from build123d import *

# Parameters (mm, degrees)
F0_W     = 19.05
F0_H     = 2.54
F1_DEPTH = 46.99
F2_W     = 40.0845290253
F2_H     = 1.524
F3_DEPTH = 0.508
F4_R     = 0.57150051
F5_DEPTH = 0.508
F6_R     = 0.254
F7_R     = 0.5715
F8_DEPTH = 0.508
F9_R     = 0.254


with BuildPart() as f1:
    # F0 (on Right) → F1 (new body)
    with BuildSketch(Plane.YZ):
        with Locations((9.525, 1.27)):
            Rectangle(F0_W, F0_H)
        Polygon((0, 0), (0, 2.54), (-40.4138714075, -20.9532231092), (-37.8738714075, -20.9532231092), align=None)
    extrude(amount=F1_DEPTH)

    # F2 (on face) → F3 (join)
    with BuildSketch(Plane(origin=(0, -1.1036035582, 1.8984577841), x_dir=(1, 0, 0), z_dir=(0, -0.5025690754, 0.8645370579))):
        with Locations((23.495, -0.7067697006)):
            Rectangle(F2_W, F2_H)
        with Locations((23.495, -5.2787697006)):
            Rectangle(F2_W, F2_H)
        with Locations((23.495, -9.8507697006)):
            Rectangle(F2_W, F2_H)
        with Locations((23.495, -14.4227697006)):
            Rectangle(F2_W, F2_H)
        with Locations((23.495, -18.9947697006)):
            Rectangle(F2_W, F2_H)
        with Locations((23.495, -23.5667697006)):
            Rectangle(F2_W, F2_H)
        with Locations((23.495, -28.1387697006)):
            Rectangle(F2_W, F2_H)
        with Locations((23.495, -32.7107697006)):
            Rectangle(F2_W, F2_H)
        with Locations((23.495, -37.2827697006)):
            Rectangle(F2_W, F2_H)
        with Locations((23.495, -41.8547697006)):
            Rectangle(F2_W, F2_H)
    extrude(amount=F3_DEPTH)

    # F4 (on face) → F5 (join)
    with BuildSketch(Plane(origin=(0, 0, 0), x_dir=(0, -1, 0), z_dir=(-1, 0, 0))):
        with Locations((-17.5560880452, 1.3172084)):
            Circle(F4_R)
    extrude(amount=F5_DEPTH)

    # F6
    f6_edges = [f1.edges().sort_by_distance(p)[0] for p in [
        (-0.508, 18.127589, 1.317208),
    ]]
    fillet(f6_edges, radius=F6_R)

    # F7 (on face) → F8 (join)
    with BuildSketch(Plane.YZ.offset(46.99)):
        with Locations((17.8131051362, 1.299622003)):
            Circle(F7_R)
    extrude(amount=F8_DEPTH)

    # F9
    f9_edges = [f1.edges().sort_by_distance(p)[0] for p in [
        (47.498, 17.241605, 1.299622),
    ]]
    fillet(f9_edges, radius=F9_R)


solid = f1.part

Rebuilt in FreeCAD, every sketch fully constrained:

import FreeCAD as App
import Part
import Sketcher
Q = App.Units.Quantity


def edges_at(feature, points):
    """Names of the edges that pass closest to the given points."""
    edges = feature.Shape.Edges
    near = lambda p: min(range(len(edges)), key=lambda i: edges[i].distToShape(Part.Vertex(*p))[0])
    return sorted({f"Edge{near(p) + 1}" for p in points})

doc = App.newDocument("Part")
params = doc.addObject("Spreadsheet::Sheet", "Params")
for row, (alias, value) in enumerate([
    ("sketch1_width", "0.1 in"),
    ("sketch1_width2", "0.75 in"),
    ("pad1_length", "1.85 in"),
    ("sketch2_height", "0.06 in"),
    ("pad2_length", "0.02 in"),
    ("sketch3_diameter", "0.045 in"),
    ("pad3_length", "0.02 in"),
    ("fillet_radius", "0.01 in"),
    ("sketch4_diameter", "0.045 in"),
    ("pad4_length", "0.02 in"),
    ("fillet2_radius", "0.01 in"),
], start=1):
    params.set(f"A{row}", alias)
    params.set(f"B{row}", "=" + value)
    params.setAlias(f"B{row}", alias)

body = doc.addObject("PartDesign::Body", "Body")

# Sketch on YZ plane
sketch1 = doc.addObject("Sketcher::SketchObject", "Sketch")
body.addObject(sketch1)
sketch1.AttachmentSupport = (doc.YZ_Plane, [""])
sketch1.MapMode = "FlatFace"
sketch1.addGeometry([
    Part.LineSegment(App.Vector(0, 0, 0), App.Vector(19.1, 0, 0)),  # 0
    Part.LineSegment(App.Vector(19.1, 0, 0), App.Vector(19.1, 2.5, 0)),  # 1
    Part.LineSegment(App.Vector(19.1, 2.5, 0), App.Vector(0, 2.5, 0)),  # 2
    Part.LineSegment(App.Vector(0, 2.5, 0), App.Vector(-40.4, -21, 0)),  # 3
    Part.LineSegment(App.Vector(-40.4, -21, 0), App.Vector(-37.9, -21, 0)),  # 4
    Part.LineSegment(App.Vector(-37.9, -21, 0), App.Vector(0, 0, 0)),  # 5
], False)
sketch1.addConstraint([
    Sketcher.Constraint("Coincident", 0, 2, 1, 1),
    Sketcher.Constraint("Coincident", 1, 2, 2, 1),
    Sketcher.Constraint("Coincident", 2, 2, 3, 1),
    Sketcher.Constraint("Coincident", 3, 2, 4, 1),
    Sketcher.Constraint("Coincident", 4, 2, 5, 1),
    Sketcher.Constraint("Coincident", 5, 2, 0, 1),
    Sketcher.Constraint("Horizontal", 0),
    Sketcher.Constraint("Vertical", 1),
    Sketcher.Constraint("Horizontal", 2),
    Sketcher.Constraint("Horizontal", 4),
    Sketcher.Constraint("Coincident", 5, 2, -1, 1),
    Sketcher.Constraint("PointOnObject", 2, 2, -2),
    Sketcher.Constraint("Equal", 4, 1),
    Sketcher.Constraint("DistanceX", 4, 1, 4, 2, Q("0.1 in")),
    Sketcher.Constraint("DistanceX", 0, 1, 0, 2, Q("0.75 in")),
    Sketcher.Constraint("DistanceX", 3, 2, -1, 1, 40.413871),
    Sketcher.Constraint("Distance", 3, 46.746257),
])
sketch1.setExpression("Constraints[13]", "Params.sketch1_width")
sketch1.setExpression("Constraints[14]", "Params.sketch1_width2")
pad1 = doc.addObject("PartDesign::Pad", "Pad")
body.addObject(pad1)
pad1.Profile = sketch1
pad1.setExpression("Length", "Params.pad1_length")

# Sketch on an angled plane
sketch2 = doc.addObject("Sketcher::SketchObject", "Sketch001")
body.addObject(sketch2)
sketch2.Placement = App.Placement(App.Vector(0, -1.103604, 1.898458), App.Rotation(App.Vector(1, 0, 0), App.Vector(0, 0.864537058, 0.502569075), App.Vector(0, -0.502569075, 0.864537058), "ZXY"))
sketch2.addGeometry([
    Part.LineSegment(App.Vector(3.5, 0.1, 0), App.Vector(3.5, -1.5, 0)),  # 0
    Part.LineSegment(App.Vector(3.5, -1.5, 0), App.Vector(43.5, -1.5, 0)),  # 1
    Part.LineSegment(App.Vector(43.5, -1.5, 0), App.Vector(43.5, 0.1, 0)),  # 2
    Part.LineSegment(App.Vector(43.5, 0.1, 0), App.Vector(3.5, 0.1, 0)),  # 3
    Part.LineSegment(App.Vector(3.5, -4.5, 0), App.Vector(3.5, -6, 0)),  # 4
    Part.LineSegment(App.Vector(3.5, -6, 0), App.Vector(43.5, -6, 0)),  # 5
    Part.LineSegment(App.Vector(43.5, -6, 0), App.Vector(43.5, -4.5, 0)),  # 6
    Part.LineSegment(App.Vector(43.5, -4.5, 0), App.Vector(3.5, -4.5, 0)),  # 7
    Part.LineSegment(App.Vector(3.5, -9.1, 0), App.Vector(3.5, -10.6, 0)),  # 8
    Part.LineSegment(App.Vector(3.5, -10.6, 0), App.Vector(43.5, -10.6, 0)),  # 9
    Part.LineSegment(App.Vector(43.5, -10.6, 0), App.Vector(43.5, -9.1, 0)),  # 10
    Part.LineSegment(App.Vector(43.5, -9.1, 0), App.Vector(3.5, -9.1, 0)),  # 11
    Part.LineSegment(App.Vector(3.5, -13.7, 0), App.Vector(3.5, -15.2, 0)),  # 12
    Part.LineSegment(App.Vector(3.5, -15.2, 0), App.Vector(43.5, -15.2, 0)),  # 13
    Part.LineSegment(App.Vector(43.5, -15.2, 0), App.Vector(43.5, -13.7, 0)),  # 14
    Part.LineSegment(App.Vector(43.5, -13.7, 0), App.Vector(3.5, -13.7, 0)),  # 15
    Part.LineSegment(App.Vector(3.5, -18.2, 0), App.Vector(3.5, -19.8, 0)),  # 16
    Part.LineSegment(App.Vector(3.5, -19.8, 0), App.Vector(43.5, -19.8, 0)),  # 17
    Part.LineSegment(App.Vector(43.5, -19.8, 0), App.Vector(43.5, -18.2, 0)),  # 18
    Part.LineSegment(App.Vector(43.5, -18.2, 0), App.Vector(3.5, -18.2, 0)),  # 19
    Part.LineSegment(App.Vector(3.5, -22.8, 0), App.Vector(3.5, -24.3, 0)),  # 20
    Part.LineSegment(App.Vector(3.5, -24.3, 0), App.Vector(43.5, -24.3, 0)),  # 21
    Part.LineSegment(App.Vector(43.5, -24.3, 0), App.Vector(43.5, -22.8, 0)),  # 22
    Part.LineSegment(App.Vector(43.5, -22.8, 0), App.Vector(3.5, -22.8, 0)),  # 23
    Part.LineSegment(App.Vector(3.5, -27.4, 0), App.Vector(3.5, -28.9, 0)),  # 24
    Part.LineSegment(App.Vector(3.5, -28.9, 0), App.Vector(43.5, -28.9, 0)),  # 25
    Part.LineSegment(App.Vector(43.5, -28.9, 0), App.Vector(43.5, -27.4, 0)),  # 26
    Part.LineSegment(App.Vector(43.5, -27.4, 0), App.Vector(3.5, -27.4, 0)),  # 27
    Part.LineSegment(App.Vector(3.5, -31.9, 0), App.Vector(3.5, -33.5, 0)),  # 28
    Part.LineSegment(App.Vector(3.5, -33.5, 0), App.Vector(43.5, -33.5, 0)),  # 29
    Part.LineSegment(App.Vector(43.5, -33.5, 0), App.Vector(43.5, -31.9, 0)),  # 30
    Part.LineSegment(App.Vector(43.5, -31.9, 0), App.Vector(3.5, -31.9, 0)),  # 31
    Part.LineSegment(App.Vector(3.5, -36.5, 0), App.Vector(3.5, -38, 0)),  # 32
    Part.LineSegment(App.Vector(3.5, -38, 0), App.Vector(43.5, -38, 0)),  # 33
    Part.LineSegment(App.Vector(43.5, -38, 0), App.Vector(43.5, -36.5, 0)),  # 34
    Part.LineSegment(App.Vector(43.5, -36.5, 0), App.Vector(3.5, -36.5, 0)),  # 35
    Part.LineSegment(App.Vector(3.5, -41.1, 0), App.Vector(3.5, -42.6, 0)),  # 36
    Part.LineSegment(App.Vector(3.5, -42.6, 0), App.Vector(43.5, -42.6, 0)),  # 37
    Part.LineSegment(App.Vector(43.5, -42.6, 0), App.Vector(43.5, -41.1, 0)),  # 38
    Part.LineSegment(App.Vector(43.5, -41.1, 0), App.Vector(3.5, -41.1, 0)),  # 39
], False)
sketch2.addConstraint([
    Sketcher.Constraint("Coincident", 0, 2, 1, 1),
    Sketcher.Constraint("Coincident", 1, 2, 2, 1),
    Sketcher.Constraint("Coincident", 2, 2, 3, 1),
    Sketcher.Constraint("Coincident", 3, 2, 0, 1),
    Sketcher.Constraint("Coincident", 4, 2, 5, 1),
    Sketcher.Constraint("Coincident", 5, 2, 6, 1),
    Sketcher.Constraint("Coincident", 6, 2, 7, 1),
    Sketcher.Constraint("Coincident", 7, 2, 4, 1),
    Sketcher.Constraint("Coincident", 8, 2, 9, 1),
    Sketcher.Constraint("Coincident", 9, 2, 10, 1),
    Sketcher.Constraint("Coincident", 10, 2, 11, 1),
    Sketcher.Constraint("Coincident", 11, 2, 8, 1),
    Sketcher.Constraint("Coincident", 12, 2, 13, 1),
    Sketcher.Constraint("Coincident", 13, 2, 14, 1),
    Sketcher.Constraint("Coincident", 14, 2, 15, 1),
    Sketcher.Constraint("Coincident", 15, 2, 12, 1),
    Sketcher.Constraint("Coincident", 16, 2, 17, 1),
    Sketcher.Constraint("Coincident", 17, 2, 18, 1),
    Sketcher.Constraint("Coincident", 18, 2, 19, 1),
    Sketcher.Constraint("Coincident", 19, 2, 16, 1),
    Sketcher.Constraint("Coincident", 20, 2, 21, 1),
    Sketcher.Constraint("Coincident", 21, 2, 22, 1),
    Sketcher.Constraint("Coincident", 22, 2, 23, 1),
    Sketcher.Constraint("Coincident", 23, 2, 20, 1),
    Sketcher.Constraint("Coincident", 24, 2, 25, 1),
    Sketcher.Constraint("Coincident", 25, 2, 26, 1),
    Sketcher.Constraint("Coincident", 26, 2, 27, 1),
    Sketcher.Constraint("Coincident", 27, 2, 24, 1),
    Sketcher.Constraint("Coincident", 28, 2, 29, 1),
    Sketcher.Constraint("Coincident", 29, 2, 30, 1),
    Sketcher.Constraint("Coincident", 30, 2, 31, 1),
    Sketcher.Constraint("Coincident", 31, 2, 28, 1),
    Sketcher.Constraint("Coincident", 32, 2, 33, 1),
    Sketcher.Constraint("Coincident", 33, 2, 34, 1),
    Sketcher.Constraint("Coincident", 34, 2, 35, 1),
    Sketcher.Constraint("Coincident", 35, 2, 32, 1),
    Sketcher.Constraint("Coincident", 36, 2, 37, 1),
    Sketcher.Constraint("Coincident", 37, 2, 38, 1),
    Sketcher.Constraint("Coincident", 38, 2, 39, 1),
    Sketcher.Constraint("Coincident", 39, 2, 36, 1),
    Sketcher.Constraint("Vertical", 0),
    Sketcher.Constraint("Horizontal", 1),
    Sketcher.Constraint("Vertical", 2),
    Sketcher.Constraint("Horizontal", 3),
    Sketcher.Constraint("Vertical", 4),
    Sketcher.Constraint("Horizontal", 5),
    Sketcher.Constraint("Vertical", 6),
    Sketcher.Constraint("Horizontal", 7),
    Sketcher.Constraint("Vertical", 8),
    Sketcher.Constraint("Horizontal", 9),
    Sketcher.Constraint("Vertical", 10),
    Sketcher.Constraint("Horizontal", 11),
    Sketcher.Constraint("Vertical", 12),
    Sketcher.Constraint("Horizontal", 13),
    Sketcher.Constraint("Vertical", 14),
    Sketcher.Constraint("Horizontal", 15),
    Sketcher.Constraint("Vertical", 16),
    Sketcher.Constraint("Horizontal", 17),
    Sketcher.Constraint("Vertical", 18),
    Sketcher.Constraint("Horizontal", 19),
    Sketcher.Constraint("Vertical", 20),
    Sketcher.Constraint("Horizontal", 21),
    Sketcher.Constraint("Vertical", 22),
    Sketcher.Constraint("Horizontal", 23),
    Sketcher.Constraint("Vertical", 24),
    Sketcher.Constraint("Horizontal", 25),
    Sketcher.Constraint("Vertical", 26),
    Sketcher.Constraint("Horizontal", 27),
    Sketcher.Constraint("Vertical", 28),
    Sketcher.Constraint("Horizontal", 29),
    Sketcher.Constraint("Vertical", 30),
    Sketcher.Constraint("Horizontal", 31),
    Sketcher.Constraint("Vertical", 32),
    Sketcher.Constraint("Horizontal", 33),
    Sketcher.Constraint("Vertical", 34),
    Sketcher.Constraint("Horizontal", 35),
    Sketcher.Constraint("Vertical", 36),
    Sketcher.Constraint("Horizontal", 37),
    Sketcher.Constraint("Vertical", 38),
    Sketcher.Constraint("Horizontal", 39),
    Sketcher.Constraint("Vertical", 3, 2, 4, 2),
    Sketcher.Constraint("Vertical", 2, 2, 5, 2),
    Sketcher.Constraint("Vertical", 7, 2, 8, 2),
    Sketcher.Constraint("Vertical", 6, 2, 9, 2),
    Sketcher.Constraint("Vertical", 11, 2, 12, 2),
    Sketcher.Constraint("Vertical", 10, 2, 13, 2),
    Sketcher.Constraint("Vertical", 15, 2, 16, 2),
    Sketcher.Constraint("Vertical", 14, 2, 17, 2),
    Sketcher.Constraint("Vertical", 19, 2, 20, 2),
    Sketcher.Constraint("Vertical", 18, 2, 21, 2),
    Sketcher.Constraint("Vertical", 23, 2, 24, 2),
    Sketcher.Constraint("Vertical", 22, 2, 25, 2),
    Sketcher.Constraint("Vertical", 27, 2, 28, 2),
    Sketcher.Constraint("Vertical", 26, 2, 29, 2),
    Sketcher.Constraint("Vertical", 31, 2, 32, 2),
    Sketcher.Constraint("Vertical", 30, 2, 33, 2),
    Sketcher.Constraint("Vertical", 35, 2, 36, 2),
    Sketcher.Constraint("Vertical", 34, 2, 37, 2),
    Sketcher.Constraint("Equal", 2, 4),
    Sketcher.Constraint("Equal", 6, 8),
    Sketcher.Constraint("Equal", 10, 12),
    Sketcher.Constraint("Equal", 14, 16),
    Sketcher.Constraint("Equal", 18, 20),
    Sketcher.Constraint("Equal", 22, 24),
    Sketcher.Constraint("Equal", 26, 28),
    Sketcher.Constraint("Equal", 30, 32),
    Sketcher.Constraint("Equal", 34, 36),
    Sketcher.Constraint("DistanceY", 0, 2, 0, 1, Q("0.06 in")),
    Sketcher.Constraint("DistanceY", 10, 2, 1, 2, Q("0.3 in")),
    Sketcher.Constraint("DistanceY", 14, 2, 5, 2, Q("0.3 in")),
    Sketcher.Constraint("DistanceY", 18, 2, 9, 2, Q("0.3 in")),
    Sketcher.Constraint("DistanceY", 22, 2, 13, 2, Q("0.3 in")),
    Sketcher.Constraint("DistanceY", 26, 2, 17, 2, Q("0.3 in")),
    Sketcher.Constraint("DistanceY", 30, 2, 21, 2, Q("0.3 in")),
    Sketcher.Constraint("DistanceY", 34, 2, 25, 2, Q("0.3 in")),
    Sketcher.Constraint("DistanceY", 38, 2, 29, 2, Q("0.3 in")),
    Sketcher.Constraint("DistanceY", 4, 2, 0, 2, Q("0.18 in")),
    Sketcher.Constraint("DistanceX", 1, 1, 1, 2, 40.084529),
    Sketcher.Constraint("DistanceY", 0, 2, -1, 1, 1.46877),
    Sketcher.Constraint("DistanceX", -1, 1, 0, 2, 3.452735),
])
sketch2.setExpression("Constraints[107]", "Params.sketch2_height")
pad2 = doc.addObject("PartDesign::Pad", "Pad001")
body.addObject(pad2)
pad2.Profile = sketch2
pad2.setExpression("Length", "Params.pad2_length")

# Sketch on YZ plane
sketch3 = doc.addObject("Sketcher::SketchObject", "Sketch002")
body.addObject(sketch3)
sketch3.AttachmentSupport = (doc.YZ_Plane, [""])
sketch3.MapMode = "FlatFace"
sketch3.addGeometry(Part.Circle(App.Vector(17.6, 1.3, 0), App.Vector(0, 0, 1), 0.6), False)
sketch3.addConstraint([
    Sketcher.Constraint("Diameter", 0, Q("0.045 in")),
    Sketcher.Constraint("DistanceX", -1, 1, 0, 3, 17.556088),
    Sketcher.Constraint("DistanceY", -1, 1, 0, 3, 1.317208),
])
sketch3.setExpression("Constraints[0]", "Params.sketch3_diameter")
pad3 = doc.addObject("PartDesign::Pad", "Pad002")
body.addObject(pad3)
pad3.Profile = sketch3
pad3.setExpression("Length", "Params.pad3_length")
pad3.Reversed = True
doc.recompute()

fillet = doc.addObject("PartDesign::Fillet", "Fillet")
body.addObject(fillet)
fillet.Base = (pad3, edges_at(pad3, [(-0.508, 18.128, 1.317)]))
fillet.setExpression("Radius", "Params.fillet_radius")

# Sketch on YZ plane
sketch4 = doc.addObject("Sketcher::SketchObject", "Sketch003")
body.addObject(sketch4)
sketch4.AttachmentSupport = (doc.YZ_Plane, [""])
sketch4.MapMode = "FlatFace"
sketch4.AttachmentOffset = App.Placement(App.Vector(0, 0, 1.85 * 25.4), App.Rotation())
sketch4.addGeometry(Part.Circle(App.Vector(17.8, 1.3, 0), App.Vector(0, 0, 1), 0.6), False)
sketch4.addConstraint([
    Sketcher.Constraint("Diameter", 0, Q("0.045 in")),
    Sketcher.Constraint("DistanceX", -1, 1, 0, 3, 17.813105),
    Sketcher.Constraint("DistanceY", -1, 1, 0, 3, 1.299622),
])
sketch4.setExpression("Constraints[0]", "Params.sketch4_diameter")
pad4 = doc.addObject("PartDesign::Pad", "Pad003")
body.addObject(pad4)
pad4.Profile = sketch4
pad4.setExpression("Length", "Params.pad4_length")
doc.recompute()

fillet2 = doc.addObject("PartDesign::Fillet", "Fillet001")
body.addObject(fillet2)
fillet2.Base = (pad4, edges_at(pad4, [(47.498, 17.242, 1.3)]))
fillet2.setExpression("Radius", "Params.fillet2_radius")

doc.recompute()
